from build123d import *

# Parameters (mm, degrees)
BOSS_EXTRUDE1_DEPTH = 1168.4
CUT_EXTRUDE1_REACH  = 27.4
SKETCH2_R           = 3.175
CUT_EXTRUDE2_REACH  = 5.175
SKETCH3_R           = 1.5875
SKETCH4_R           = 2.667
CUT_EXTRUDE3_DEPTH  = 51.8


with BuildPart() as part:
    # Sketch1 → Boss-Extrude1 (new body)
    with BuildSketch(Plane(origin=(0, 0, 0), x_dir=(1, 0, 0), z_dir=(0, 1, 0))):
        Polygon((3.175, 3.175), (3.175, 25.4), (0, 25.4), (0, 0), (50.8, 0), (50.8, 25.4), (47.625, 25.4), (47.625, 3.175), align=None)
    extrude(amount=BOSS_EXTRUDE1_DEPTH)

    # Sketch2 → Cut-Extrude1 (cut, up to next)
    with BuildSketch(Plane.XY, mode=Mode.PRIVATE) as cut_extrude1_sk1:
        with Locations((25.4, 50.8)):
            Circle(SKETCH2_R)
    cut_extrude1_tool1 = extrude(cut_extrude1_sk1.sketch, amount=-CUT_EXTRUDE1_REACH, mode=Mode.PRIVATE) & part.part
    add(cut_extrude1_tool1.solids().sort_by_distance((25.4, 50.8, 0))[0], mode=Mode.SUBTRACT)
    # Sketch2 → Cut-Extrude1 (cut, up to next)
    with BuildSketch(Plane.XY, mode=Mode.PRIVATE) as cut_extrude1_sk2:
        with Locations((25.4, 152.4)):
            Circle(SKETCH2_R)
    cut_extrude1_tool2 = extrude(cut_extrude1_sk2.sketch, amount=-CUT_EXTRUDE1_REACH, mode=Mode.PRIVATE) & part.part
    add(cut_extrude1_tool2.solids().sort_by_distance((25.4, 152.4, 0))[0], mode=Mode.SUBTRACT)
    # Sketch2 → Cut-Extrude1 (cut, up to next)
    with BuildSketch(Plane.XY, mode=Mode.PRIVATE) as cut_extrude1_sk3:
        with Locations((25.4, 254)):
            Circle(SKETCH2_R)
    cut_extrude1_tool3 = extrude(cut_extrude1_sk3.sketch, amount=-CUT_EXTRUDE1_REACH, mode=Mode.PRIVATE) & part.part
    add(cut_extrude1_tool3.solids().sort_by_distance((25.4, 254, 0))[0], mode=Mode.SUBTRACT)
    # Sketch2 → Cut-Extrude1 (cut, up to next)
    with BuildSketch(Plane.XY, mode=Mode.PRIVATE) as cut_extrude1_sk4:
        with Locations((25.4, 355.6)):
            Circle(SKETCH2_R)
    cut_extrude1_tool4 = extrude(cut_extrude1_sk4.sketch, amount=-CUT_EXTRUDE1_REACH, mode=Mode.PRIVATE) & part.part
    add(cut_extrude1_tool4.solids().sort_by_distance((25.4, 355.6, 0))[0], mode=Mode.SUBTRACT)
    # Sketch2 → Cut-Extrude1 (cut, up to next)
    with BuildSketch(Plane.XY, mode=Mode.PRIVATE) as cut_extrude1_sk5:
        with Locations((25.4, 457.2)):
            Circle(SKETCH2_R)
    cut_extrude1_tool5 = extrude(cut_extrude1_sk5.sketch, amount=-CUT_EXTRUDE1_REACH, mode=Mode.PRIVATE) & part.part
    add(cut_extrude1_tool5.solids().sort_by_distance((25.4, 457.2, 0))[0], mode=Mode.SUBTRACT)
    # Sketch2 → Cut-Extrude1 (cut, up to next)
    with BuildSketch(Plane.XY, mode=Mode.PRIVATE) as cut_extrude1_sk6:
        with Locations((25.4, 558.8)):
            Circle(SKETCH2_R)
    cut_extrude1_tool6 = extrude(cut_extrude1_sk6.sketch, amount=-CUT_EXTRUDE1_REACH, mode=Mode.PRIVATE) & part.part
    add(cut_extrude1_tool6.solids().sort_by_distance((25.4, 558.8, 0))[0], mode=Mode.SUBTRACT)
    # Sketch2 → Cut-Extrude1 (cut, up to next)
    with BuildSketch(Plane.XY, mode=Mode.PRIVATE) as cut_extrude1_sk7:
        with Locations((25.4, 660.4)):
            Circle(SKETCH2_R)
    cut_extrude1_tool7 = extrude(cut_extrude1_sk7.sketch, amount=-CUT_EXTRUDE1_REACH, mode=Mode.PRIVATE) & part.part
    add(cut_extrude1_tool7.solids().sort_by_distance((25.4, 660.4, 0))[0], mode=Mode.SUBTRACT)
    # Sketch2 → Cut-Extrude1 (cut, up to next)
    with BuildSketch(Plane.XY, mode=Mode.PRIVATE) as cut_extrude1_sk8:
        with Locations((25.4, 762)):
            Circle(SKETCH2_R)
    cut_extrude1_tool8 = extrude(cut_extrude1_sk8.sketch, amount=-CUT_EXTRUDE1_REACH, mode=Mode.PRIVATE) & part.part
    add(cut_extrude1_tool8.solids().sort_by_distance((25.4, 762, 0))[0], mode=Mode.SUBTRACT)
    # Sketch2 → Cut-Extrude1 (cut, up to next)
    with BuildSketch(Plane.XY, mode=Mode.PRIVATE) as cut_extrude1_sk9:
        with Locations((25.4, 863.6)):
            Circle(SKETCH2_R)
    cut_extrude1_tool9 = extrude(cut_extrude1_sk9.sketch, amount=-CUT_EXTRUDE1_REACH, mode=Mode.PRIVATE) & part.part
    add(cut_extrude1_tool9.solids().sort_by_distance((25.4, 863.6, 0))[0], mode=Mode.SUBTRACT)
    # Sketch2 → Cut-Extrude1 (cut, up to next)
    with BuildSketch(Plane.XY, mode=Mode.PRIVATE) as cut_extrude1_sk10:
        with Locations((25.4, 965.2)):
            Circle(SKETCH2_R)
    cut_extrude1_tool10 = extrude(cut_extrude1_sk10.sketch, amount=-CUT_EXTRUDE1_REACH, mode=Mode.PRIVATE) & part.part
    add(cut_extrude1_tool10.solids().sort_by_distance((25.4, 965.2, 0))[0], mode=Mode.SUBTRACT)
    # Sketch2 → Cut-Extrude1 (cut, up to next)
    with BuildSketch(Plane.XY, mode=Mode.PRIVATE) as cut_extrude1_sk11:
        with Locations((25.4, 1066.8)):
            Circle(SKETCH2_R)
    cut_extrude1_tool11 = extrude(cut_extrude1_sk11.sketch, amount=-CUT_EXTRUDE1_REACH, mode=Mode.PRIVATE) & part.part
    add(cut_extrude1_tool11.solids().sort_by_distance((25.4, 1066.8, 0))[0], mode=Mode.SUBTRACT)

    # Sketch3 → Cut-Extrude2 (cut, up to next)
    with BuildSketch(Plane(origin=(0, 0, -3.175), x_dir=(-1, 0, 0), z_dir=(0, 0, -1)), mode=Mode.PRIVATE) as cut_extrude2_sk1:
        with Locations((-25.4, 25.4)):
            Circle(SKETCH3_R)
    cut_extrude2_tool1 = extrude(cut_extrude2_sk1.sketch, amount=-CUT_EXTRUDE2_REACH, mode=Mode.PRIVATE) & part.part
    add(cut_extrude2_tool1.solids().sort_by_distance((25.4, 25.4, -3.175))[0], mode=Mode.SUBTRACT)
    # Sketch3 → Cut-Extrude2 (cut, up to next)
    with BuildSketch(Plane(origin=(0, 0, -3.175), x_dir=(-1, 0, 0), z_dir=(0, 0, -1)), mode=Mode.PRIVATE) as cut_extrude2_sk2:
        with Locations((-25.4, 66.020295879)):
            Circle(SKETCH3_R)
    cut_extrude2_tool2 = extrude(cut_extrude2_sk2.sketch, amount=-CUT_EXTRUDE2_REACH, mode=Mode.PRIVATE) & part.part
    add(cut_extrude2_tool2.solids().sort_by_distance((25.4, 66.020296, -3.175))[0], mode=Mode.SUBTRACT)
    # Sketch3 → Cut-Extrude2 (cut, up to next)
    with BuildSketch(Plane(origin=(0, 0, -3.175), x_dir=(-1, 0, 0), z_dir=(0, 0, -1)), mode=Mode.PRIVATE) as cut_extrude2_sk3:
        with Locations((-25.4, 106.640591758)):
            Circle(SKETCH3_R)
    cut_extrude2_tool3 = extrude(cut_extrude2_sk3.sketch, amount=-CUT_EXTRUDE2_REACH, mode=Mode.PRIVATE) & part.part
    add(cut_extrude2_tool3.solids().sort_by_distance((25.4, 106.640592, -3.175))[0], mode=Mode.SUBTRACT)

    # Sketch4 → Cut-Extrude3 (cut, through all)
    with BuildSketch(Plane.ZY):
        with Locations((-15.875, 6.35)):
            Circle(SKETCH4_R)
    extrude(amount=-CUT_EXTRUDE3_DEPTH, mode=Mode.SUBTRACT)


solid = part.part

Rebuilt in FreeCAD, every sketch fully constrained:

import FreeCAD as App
import Part
import Sketcher

V = App.Vector
Q = App.Units.Quantity

doc = App.newDocument("Part")
body = doc.addObject("PartDesign::Body", "Body")

sketch1 = doc.addObject("Sketcher::SketchObject", "Sketch")
body.addObject(sketch1)
sketch1.AttachmentSupport = (doc.XZ_Plane, [""])
sketch1.MapMode = "FlatFace"
sketch1.addGeometry(Part.LineSegment(V(3.2, -3.2, 0), V(3.2, -25.4, 0)), False)
sketch1.addGeometry(Part.LineSegment(V(3.2, -25.4, 0), V(0, -25.4, 0)), False)
sketch1.addGeometry(Part.LineSegment(V(0, -25.4, 0), V(0, 0, 0)), False)
sketch1.addGeometry(Part.LineSegment(V(0, 0, 0), V(50.8, 0, 0)), False)
sketch1.addGeometry(Part.LineSegment(V(50.8, 0, 0), V(50.8, -25.4, 0)), False)
sketch1.addGeometry(Part.LineSegment(V(50.8, -25.4, 0), V(47.6, -25.4, 0)), False)
sketch1.addGeometry(Part.LineSegment(V(47.6, -25.4, 0), V(47.6, -3.2, 0)), False)
sketch1.addGeometry(Part.LineSegment(V(47.6, -3.2, 0), V(3.2, -3.2, 0)), False)
sketch1.addConstraint(Sketcher.Constraint("Coincident", 0, 2, 1, 1))
sketch1.addConstraint(Sketcher.Constraint("Coincident", 1, 2, 2, 1))
sketch1.addConstraint(Sketcher.Constraint("Coincident", 2, 2, 3, 1))
sketch1.addConstraint(Sketcher.Constraint("Coincident", 3, 2, 4, 1))
sketch1.addConstraint(Sketcher.Constraint("Coincident", 4, 2, 5, 1))
sketch1.addConstraint(Sketcher.Constraint("Coincident", 5, 2, 6, 1))
sketch1.addConstraint(Sketcher.Constraint("Coincident", 6, 2, 7, 1))
sketch1.addConstraint(Sketcher.Constraint("Coincident", 7, 2, 0, 1))
sketch1.addConstraint(Sketcher.Constraint("Vertical", 0))
sketch1.addConstraint(Sketcher.Constraint("Horizontal", 1))
sketch1.addConstraint(Sketcher.Constraint("Vertical", 2))
sketch1.addConstraint(Sketcher.Constraint("Horizontal", 3))
sketch1.addConstraint(Sketcher.Constraint("Vertical", 4))
sketch1.addConstraint(Sketcher.Constraint("Horizontal", 5))
sketch1.addConstraint(Sketcher.Constraint("Vertical", 6))
sketch1.addConstraint(Sketcher.Constraint("Horizontal", 7))
sketch1.addConstraint(Sketcher.Constraint("Coincident", 2, 2, -1, 1))
sketch1.addConstraint(Sketcher.Constraint("Horizontal", 1, 2, 4, 2))
sketch1.addConstraint(Sketcher.Constraint("Equal", 1, 5))
sketch1.addConstraint(Sketcher.Constraint("DistanceX", 3, 1, 3, 2, Q("2 in")))
sketch1.addConstraint(Sketcher.Constraint("DistanceY", 2, 1, 2, 2, Q("1 in")))
sketch1.addConstraint(Sketcher.Constraint("DistanceX", 7, 2, 7, 1, Q("1.75 in")))
sketch1.addConstraint(Sketcher.Constraint("DistanceY", 0, 2, 0, 1, Q("0.875 in")))
pad1 = doc.addObject("PartDesign::Pad", "Pad")
body.addObject(pad1)
pad1.Profile = sketch1
pad1.Length = Q("46 in")
pad1.Reversed = True

sketch2 = doc.addObject("Sketcher::SketchObject", "Sketch001")
body.addObject(sketch2)
sketch2.AttachmentSupport = (doc.XY_Plane, [""])
sketch2.MapMode = "FlatFace"
sketch2.addGeometry(Part.Circle(V(25.4, 50.8, 0), V(0, 0, 1), 3.2), False)
sketch2.addConstraint(Sketcher.Constraint("Diameter", 0, Q("0.25 in")))
sketch2.addConstraint(Sketcher.Constraint("DistanceX", -1, 1, 0, 3, Q("1 in")))
sketch2.addConstraint(Sketcher.Constraint("DistanceY", -1, 1, 0, 3, Q("2 in")))
pocket1 = doc.addObject("PartDesign::Pocket", "Pocket")
body.addObject(pocket1)
pocket1.Profile = sketch2
pocket1.Type = "UpToFirst"

sketch3 = doc.addObject("Sketcher::SketchObject", "Sketch002")
body.addObject(sketch3)
sketch3.AttachmentSupport = (doc.XY_Plane, [""])
sketch3.MapMode = "FlatFace"
sketch3.addGeometry(Part.Circle(V(25.4, 152.4, 0), V(0, 0, 1), 3.2), False)
sketch3.addConstraint(Sketcher.Constraint("Diameter", 0, Q("0.25 in")))
sketch3.addConstraint(Sketcher.Constraint("DistanceX", -1, 1, 0, 3, Q("1 in")))
sketch3.addConstraint(Sketcher.Constraint("DistanceY", -1, 1, 0, 3, Q("6 in")))
pocket2 = doc.addObject("PartDesign::Pocket", "Pocket001")
body.addObject(pocket2)
pocket2.Profile = sketch3
pocket2.Type = "UpToFirst"

sketch4 = doc.addObject("Sketcher::SketchObject", "Sketch003")
body.addObject(sketch4)
sketch4.AttachmentSupport = (doc.XY_Plane, [""])
sketch4.MapMode = "FlatFace"
sketch4.addGeometry(Part.Circle(V(25.4, 254, 0), V(0, 0, 1), 3.2), False)
sketch4.addConstraint(Sketcher.Constraint("Diameter", 0, Q("0.25 in")))
sketch4.addConstraint(Sketcher.Constraint("DistanceX", -1, 1, 0, 3, Q("1 in")))
sketch4.addConstraint(Sketcher.Constraint("DistanceY", -1, 1, 0, 3, Q("10 in")))
pocket3 = doc.addObject("PartDesign::Pocket", "Pocket002")
body.addObject(pocket3)
pocket3.Profile = sketch4
pocket3.Type = "UpToFirst"

sketch5 = doc.addObject("Sketcher::SketchObject", "Sketch004")
body.addObject(sketch5)
sketch5.AttachmentSupport = (doc.XY_Plane, [""])
sketch5.MapMode = "FlatFace"
sketch5.addGeometry(Part.Circle(V(25.4, 355.6, 0), V(0, 0, 1), 3.2), False)
sketch5.addConstraint(Sketcher.Constraint("Diameter", 0, Q("0.25 in")))
sketch5.addConstraint(Sketcher.Constraint("DistanceX", -1, 1, 0, 3, Q("1 in")))
sketch5.addConstraint(Sketcher.Constraint("DistanceY", -1, 1, 0, 3, Q("14 in")))
pocket4 = doc.addObject("PartDesign::Pocket", "Pocket003")
body.addObject(pocket4)
pocket4.Profile = sketch5
pocket4.Type = "UpToFirst"

sketch6 = doc.addObject("Sketcher::SketchObject", "Sketch005")
body.addObject(sketch6)
sketch6.AttachmentSupport = (doc.XY_Plane, [""])
sketch6.MapMode = "FlatFace"
sketch6.addGeometry(Part.Circle(V(25.4, 457.2, 0), V(0, 0, 1), 3.2), False)
sketch6.addConstraint(Sketcher.Constraint("Diameter", 0, Q("0.25 in")))
sketch6.addConstraint(Sketcher.Constraint("DistanceX", -1, 1, 0, 3, Q("1 in")))
sketch6.addConstraint(Sketcher.Constraint("DistanceY", -1, 1, 0, 3, Q("18 in")))
pocket5 = doc.addObject("PartDesign::Pocket", "Pocket004")
body.addObject(pocket5)
pocket5.Profile = sketch6
pocket5.Type = "UpToFirst"

sketch7 = doc.addObject("Sketcher::SketchObject", "Sketch006")
body.addObject(sketch7)
sketch7.AttachmentSupport = (doc.XY_Plane, [""])
sketch7.MapMode = "FlatFace"
sketch7.addGeometry(Part.Circle(V(25.4, 558.8, 0), V(0, 0, 1), 3.2), False)
sketch7.addConstraint(Sketcher.Constraint("Diameter", 0, Q("0.25 in")))
sketch7.addConstraint(Sketcher.Constraint("DistanceX", -1, 1, 0, 3, Q("1 in")))
sketch7.addConstraint(Sketcher.Constraint("DistanceY", -1, 1, 0, 3, Q("22 in")))
pocket6 = doc.addObject("PartDesign::Pocket", "Pocket005")
body.addObject(pocket6)
pocket6.Profile = sketch7
pocket6.Type = "UpToFirst"

sketch8 = doc.addObject("Sketcher::SketchObject", "Sketch007")
body.addObject(sketch8)
sketch8.AttachmentSupport = (doc.XY_Plane, [""])
sketch8.MapMode = "FlatFace"
sketch8.addGeometry(Part.Circle(V(25.4, 660.4, 0), V(0, 0, 1), 3.2), False)
sketch8.addConstraint(Sketcher.Constraint("Diameter", 0, Q("0.25 in")))
sketch8.addConstraint(Sketcher.Constraint("DistanceX", -1, 1, 0, 3, Q("1 in")))
sketch8.addConstraint(Sketcher.Constraint("DistanceY", -1, 1, 0, 3, Q("26 in")))
pocket7 = doc.addObject("PartDesign::Pocket", "Pocket006")
body.addObject(pocket7)
pocket7.Profile = sketch8
pocket7.Type = "UpToFirst"

sketch9 = doc.addObject("Sketcher::SketchObject", "Sketch008")
body.addObject(sketch9)
sketch9.AttachmentSupport = (doc.XY_Plane, [""])
sketch9.MapMode = "FlatFace"
sketch9.addGeometry(Part.Circle(V(25.4, 762, 0), V(0, 0, 1), 3.2), False)
sketch9.addConstraint(Sketcher.Constraint("Diameter", 0, Q("0.25 in")))
sketch9.addConstraint(Sketcher.Constraint("DistanceX", -1, 1, 0, 3, Q("1 in")))
sketch9.addConstraint(Sketcher.Constraint("DistanceY", -1, 1, 0, 3, Q("30 in")))
pocket8 = doc.addObject("PartDesign::Pocket", "Pocket007")
body.addObject(pocket8)
pocket8.Profile = sketch9
pocket8.Type = "UpToFirst"

sketch10 = doc.addObject("Sketcher::SketchObject", "Sketch009")
body.addObject(sketch10)
sketch10.AttachmentSupport = (doc.XY_Plane, [""])
sketch10.MapMode = "FlatFace"
sketch10.addGeometry(Part.Circle(V(25.4, 863.6, 0), V(0, 0, 1), 3.2), False)
sketch10.addConstraint(Sketcher.Constraint("Diameter", 0, Q("0.25 in")))
sketch10.addConstraint(Sketcher.Constraint("DistanceX", -1, 1, 0, 3, Q("1 in")))
sketch10.addConstraint(Sketcher.Constraint("DistanceY", -1, 1, 0, 3, Q("34 in")))
pocket9 = doc.addObject("PartDesign::Pocket", "Pocket008")
body.addObject(pocket9)
pocket9.Profile = sketch10
pocket9.Type = "UpToFirst"

sketch11 = doc.addObject("Sketcher::SketchObject", "Sketch010")
body.addObject(sketch11)
sketch11.AttachmentSupport = (doc.XY_Plane, [""])
sketch11.MapMode = "FlatFace"
sketch11.addGeometry(Part.Circle(V(25.4, 965.2, 0), V(0, 0, 1), 3.2), False)
sketch11.addConstraint(Sketcher.Constraint("Diameter", 0, Q("0.25 in")))
sketch11.addConstraint(Sketcher.Constraint("DistanceX", -1, 1, 0, 3, Q("1 in")))
sketch11.addConstraint(Sketcher.Constraint("DistanceY", -1, 1, 0, 3, Q("38 in")))
pocket10 = doc.addObject("PartDesign::Pocket", "Pocket009")
body.addObject(pocket10)
pocket10.Profile = sketch11
pocket10.Type = "UpToFirst"

sketch12 = doc.addObject("Sketcher::SketchObject", "Sketch011")
body.addObject(sketch12)
sketch12.AttachmentSupport = (doc.XY_Plane, [""])
sketch12.MapMode = "FlatFace"
sketch12.addGeometry(Part.Circle(V(25.4, 1066.8, 0), V(0, 0, 1), 3.2), False)
sketch12.addConstraint(Sketcher.Constraint("Diameter", 0, Q("0.25 in")))
sketch12.addConstraint(Sketcher.Constraint("DistanceX", -1, 1, 0, 3, Q("1 in")))
sketch12.addConstraint(Sketcher.Constraint("DistanceY", -1, 1, 0, 3, Q("42 in")))
pocket11 = doc.addObject("PartDesign::Pocket", "Pocket010")
body.addObject(pocket11)
pocket11.Profile = sketch12
pocket11.Type = "UpToFirst"

sketch13 = doc.addObject("Sketcher::SketchObject", "Sketch012")
body.addObject(sketch13)
sketch13.AttachmentSupport = (doc.XY_Plane, [""])
sketch13.MapMode = "FlatFace"
sketch13.AttachmentOffset = App.Placement(V(0, 0, -0.125 * 25.4), App.Rotation())
sketch13.addGeometry(Part.Circle(V(25.4, 25.4, 0), V(0, 0, 1), 1.6), False)
sketch13.addConstraint(Sketcher.Constraint("Diameter", 0, Q("0.125 in")))
sketch13.addConstraint(Sketcher.Constraint("DistanceX", -1, 1, 0, 3, Q("1 in")))
sketch13.addConstraint(Sketcher.Constraint("DistanceY", -1, 1, 0, 3, Q("1 in")))
pocket12 = doc.addObject("PartDesign::Pocket", "Pocket011")
body.addObject(pocket12)
pocket12.Profile = sketch13
pocket12.Type = "UpToFirst"
pocket12.Reversed = True

sketch14 = doc.addObject("Sketcher::SketchObject", "Sketch013")
body.addObject(sketch14)
sketch14.AttachmentSupport = (doc.XY_Plane, [""])
sketch14.MapMode = "FlatFace"
sketch14.AttachmentOffset = App.Placement(V(0, 0, -0.125 * 25.4), App.Rotation())
sketch14.addGeometry(Part.Circle(V(25.4, 66, 0), V(0, 0, 1), 1.6), False)
sketch14.addConstraint(Sketcher.Constraint("Diameter", 0, Q("0.125 in")))
sketch14.addConstraint(Sketcher.Constraint("DistanceX", -1, 1, 0, 3, Q("1 in")))
sketch14.addConstraint(Sketcher.Constraint("DistanceY", -1, 1, 0, 3, Q("66.020296 mm")))
pocket13 = doc.addObject("PartDesign::Pocket", "Pocket012")
body.addObject(pocket13)
pocket13.Profile = sketch14
pocket13.Type = "UpToFirst"
pocket13.Reversed = True

sketch15 = doc.addObject("Sketcher::SketchObject", "Sketch014")
body.addObject(sketch15)
sketch15.AttachmentSupport = (doc.XY_Plane, [""])
sketch15.MapMode = "FlatFace"
sketch15.AttachmentOffset = App.Placement(V(0, 0, -0.125 * 25.4), App.Rotation())
sketch15.addGeometry(Part.Circle(V(25.4, 106.6, 0), V(0, 0, 1), 1.6), False)
sketch15.addConstraint(Sketcher.Constraint("Diameter", 0, Q("0.125 in")))
sketch15.addConstraint(Sketcher.Constraint("DistanceX", -1, 1, 0, 3, Q("1 in")))
sketch15.addConstraint(Sketcher.Constraint("DistanceY", -1, 1, 0, 3, Q("106.640592 mm")))
pocket14 = doc.addObject("PartDesign::Pocket", "Pocket013")
body.addObject(pocket14)
pocket14.Profile = sketch15
pocket14.Type = "UpToFirst"
pocket14.Reversed = True

sketch16 = doc.addObject("Sketcher::SketchObject", "Sketch015")
body.addObject(sketch16)
sketch16.AttachmentSupport = (doc.YZ_Plane, [""])
sketch16.MapMode = "FlatFace"
sketch16.addGeometry(Part.Circle(V(6.3, -15.9, 0), V(0, 0, 1), 2.7), False)
sketch16.addConstraint(Sketcher.Constraint("Diameter", 0, Q("0.21 in")))
sketch16.addConstraint(Sketcher.Constraint("DistanceX", -1, 1, 0, 3, Q("0.25 in")))
sketch16.addConstraint(Sketcher.Constraint("DistanceY", 0, 3, -1, 1, Q("0.625 in")))
pocket15 = doc.addObject("PartDesign::Pocket", "Pocket014")
body.addObject(pocket15)
pocket15.Profile = sketch16
pocket15.Type = "ThroughAll"
pocket15.Reversed = True

doc.recompute()
